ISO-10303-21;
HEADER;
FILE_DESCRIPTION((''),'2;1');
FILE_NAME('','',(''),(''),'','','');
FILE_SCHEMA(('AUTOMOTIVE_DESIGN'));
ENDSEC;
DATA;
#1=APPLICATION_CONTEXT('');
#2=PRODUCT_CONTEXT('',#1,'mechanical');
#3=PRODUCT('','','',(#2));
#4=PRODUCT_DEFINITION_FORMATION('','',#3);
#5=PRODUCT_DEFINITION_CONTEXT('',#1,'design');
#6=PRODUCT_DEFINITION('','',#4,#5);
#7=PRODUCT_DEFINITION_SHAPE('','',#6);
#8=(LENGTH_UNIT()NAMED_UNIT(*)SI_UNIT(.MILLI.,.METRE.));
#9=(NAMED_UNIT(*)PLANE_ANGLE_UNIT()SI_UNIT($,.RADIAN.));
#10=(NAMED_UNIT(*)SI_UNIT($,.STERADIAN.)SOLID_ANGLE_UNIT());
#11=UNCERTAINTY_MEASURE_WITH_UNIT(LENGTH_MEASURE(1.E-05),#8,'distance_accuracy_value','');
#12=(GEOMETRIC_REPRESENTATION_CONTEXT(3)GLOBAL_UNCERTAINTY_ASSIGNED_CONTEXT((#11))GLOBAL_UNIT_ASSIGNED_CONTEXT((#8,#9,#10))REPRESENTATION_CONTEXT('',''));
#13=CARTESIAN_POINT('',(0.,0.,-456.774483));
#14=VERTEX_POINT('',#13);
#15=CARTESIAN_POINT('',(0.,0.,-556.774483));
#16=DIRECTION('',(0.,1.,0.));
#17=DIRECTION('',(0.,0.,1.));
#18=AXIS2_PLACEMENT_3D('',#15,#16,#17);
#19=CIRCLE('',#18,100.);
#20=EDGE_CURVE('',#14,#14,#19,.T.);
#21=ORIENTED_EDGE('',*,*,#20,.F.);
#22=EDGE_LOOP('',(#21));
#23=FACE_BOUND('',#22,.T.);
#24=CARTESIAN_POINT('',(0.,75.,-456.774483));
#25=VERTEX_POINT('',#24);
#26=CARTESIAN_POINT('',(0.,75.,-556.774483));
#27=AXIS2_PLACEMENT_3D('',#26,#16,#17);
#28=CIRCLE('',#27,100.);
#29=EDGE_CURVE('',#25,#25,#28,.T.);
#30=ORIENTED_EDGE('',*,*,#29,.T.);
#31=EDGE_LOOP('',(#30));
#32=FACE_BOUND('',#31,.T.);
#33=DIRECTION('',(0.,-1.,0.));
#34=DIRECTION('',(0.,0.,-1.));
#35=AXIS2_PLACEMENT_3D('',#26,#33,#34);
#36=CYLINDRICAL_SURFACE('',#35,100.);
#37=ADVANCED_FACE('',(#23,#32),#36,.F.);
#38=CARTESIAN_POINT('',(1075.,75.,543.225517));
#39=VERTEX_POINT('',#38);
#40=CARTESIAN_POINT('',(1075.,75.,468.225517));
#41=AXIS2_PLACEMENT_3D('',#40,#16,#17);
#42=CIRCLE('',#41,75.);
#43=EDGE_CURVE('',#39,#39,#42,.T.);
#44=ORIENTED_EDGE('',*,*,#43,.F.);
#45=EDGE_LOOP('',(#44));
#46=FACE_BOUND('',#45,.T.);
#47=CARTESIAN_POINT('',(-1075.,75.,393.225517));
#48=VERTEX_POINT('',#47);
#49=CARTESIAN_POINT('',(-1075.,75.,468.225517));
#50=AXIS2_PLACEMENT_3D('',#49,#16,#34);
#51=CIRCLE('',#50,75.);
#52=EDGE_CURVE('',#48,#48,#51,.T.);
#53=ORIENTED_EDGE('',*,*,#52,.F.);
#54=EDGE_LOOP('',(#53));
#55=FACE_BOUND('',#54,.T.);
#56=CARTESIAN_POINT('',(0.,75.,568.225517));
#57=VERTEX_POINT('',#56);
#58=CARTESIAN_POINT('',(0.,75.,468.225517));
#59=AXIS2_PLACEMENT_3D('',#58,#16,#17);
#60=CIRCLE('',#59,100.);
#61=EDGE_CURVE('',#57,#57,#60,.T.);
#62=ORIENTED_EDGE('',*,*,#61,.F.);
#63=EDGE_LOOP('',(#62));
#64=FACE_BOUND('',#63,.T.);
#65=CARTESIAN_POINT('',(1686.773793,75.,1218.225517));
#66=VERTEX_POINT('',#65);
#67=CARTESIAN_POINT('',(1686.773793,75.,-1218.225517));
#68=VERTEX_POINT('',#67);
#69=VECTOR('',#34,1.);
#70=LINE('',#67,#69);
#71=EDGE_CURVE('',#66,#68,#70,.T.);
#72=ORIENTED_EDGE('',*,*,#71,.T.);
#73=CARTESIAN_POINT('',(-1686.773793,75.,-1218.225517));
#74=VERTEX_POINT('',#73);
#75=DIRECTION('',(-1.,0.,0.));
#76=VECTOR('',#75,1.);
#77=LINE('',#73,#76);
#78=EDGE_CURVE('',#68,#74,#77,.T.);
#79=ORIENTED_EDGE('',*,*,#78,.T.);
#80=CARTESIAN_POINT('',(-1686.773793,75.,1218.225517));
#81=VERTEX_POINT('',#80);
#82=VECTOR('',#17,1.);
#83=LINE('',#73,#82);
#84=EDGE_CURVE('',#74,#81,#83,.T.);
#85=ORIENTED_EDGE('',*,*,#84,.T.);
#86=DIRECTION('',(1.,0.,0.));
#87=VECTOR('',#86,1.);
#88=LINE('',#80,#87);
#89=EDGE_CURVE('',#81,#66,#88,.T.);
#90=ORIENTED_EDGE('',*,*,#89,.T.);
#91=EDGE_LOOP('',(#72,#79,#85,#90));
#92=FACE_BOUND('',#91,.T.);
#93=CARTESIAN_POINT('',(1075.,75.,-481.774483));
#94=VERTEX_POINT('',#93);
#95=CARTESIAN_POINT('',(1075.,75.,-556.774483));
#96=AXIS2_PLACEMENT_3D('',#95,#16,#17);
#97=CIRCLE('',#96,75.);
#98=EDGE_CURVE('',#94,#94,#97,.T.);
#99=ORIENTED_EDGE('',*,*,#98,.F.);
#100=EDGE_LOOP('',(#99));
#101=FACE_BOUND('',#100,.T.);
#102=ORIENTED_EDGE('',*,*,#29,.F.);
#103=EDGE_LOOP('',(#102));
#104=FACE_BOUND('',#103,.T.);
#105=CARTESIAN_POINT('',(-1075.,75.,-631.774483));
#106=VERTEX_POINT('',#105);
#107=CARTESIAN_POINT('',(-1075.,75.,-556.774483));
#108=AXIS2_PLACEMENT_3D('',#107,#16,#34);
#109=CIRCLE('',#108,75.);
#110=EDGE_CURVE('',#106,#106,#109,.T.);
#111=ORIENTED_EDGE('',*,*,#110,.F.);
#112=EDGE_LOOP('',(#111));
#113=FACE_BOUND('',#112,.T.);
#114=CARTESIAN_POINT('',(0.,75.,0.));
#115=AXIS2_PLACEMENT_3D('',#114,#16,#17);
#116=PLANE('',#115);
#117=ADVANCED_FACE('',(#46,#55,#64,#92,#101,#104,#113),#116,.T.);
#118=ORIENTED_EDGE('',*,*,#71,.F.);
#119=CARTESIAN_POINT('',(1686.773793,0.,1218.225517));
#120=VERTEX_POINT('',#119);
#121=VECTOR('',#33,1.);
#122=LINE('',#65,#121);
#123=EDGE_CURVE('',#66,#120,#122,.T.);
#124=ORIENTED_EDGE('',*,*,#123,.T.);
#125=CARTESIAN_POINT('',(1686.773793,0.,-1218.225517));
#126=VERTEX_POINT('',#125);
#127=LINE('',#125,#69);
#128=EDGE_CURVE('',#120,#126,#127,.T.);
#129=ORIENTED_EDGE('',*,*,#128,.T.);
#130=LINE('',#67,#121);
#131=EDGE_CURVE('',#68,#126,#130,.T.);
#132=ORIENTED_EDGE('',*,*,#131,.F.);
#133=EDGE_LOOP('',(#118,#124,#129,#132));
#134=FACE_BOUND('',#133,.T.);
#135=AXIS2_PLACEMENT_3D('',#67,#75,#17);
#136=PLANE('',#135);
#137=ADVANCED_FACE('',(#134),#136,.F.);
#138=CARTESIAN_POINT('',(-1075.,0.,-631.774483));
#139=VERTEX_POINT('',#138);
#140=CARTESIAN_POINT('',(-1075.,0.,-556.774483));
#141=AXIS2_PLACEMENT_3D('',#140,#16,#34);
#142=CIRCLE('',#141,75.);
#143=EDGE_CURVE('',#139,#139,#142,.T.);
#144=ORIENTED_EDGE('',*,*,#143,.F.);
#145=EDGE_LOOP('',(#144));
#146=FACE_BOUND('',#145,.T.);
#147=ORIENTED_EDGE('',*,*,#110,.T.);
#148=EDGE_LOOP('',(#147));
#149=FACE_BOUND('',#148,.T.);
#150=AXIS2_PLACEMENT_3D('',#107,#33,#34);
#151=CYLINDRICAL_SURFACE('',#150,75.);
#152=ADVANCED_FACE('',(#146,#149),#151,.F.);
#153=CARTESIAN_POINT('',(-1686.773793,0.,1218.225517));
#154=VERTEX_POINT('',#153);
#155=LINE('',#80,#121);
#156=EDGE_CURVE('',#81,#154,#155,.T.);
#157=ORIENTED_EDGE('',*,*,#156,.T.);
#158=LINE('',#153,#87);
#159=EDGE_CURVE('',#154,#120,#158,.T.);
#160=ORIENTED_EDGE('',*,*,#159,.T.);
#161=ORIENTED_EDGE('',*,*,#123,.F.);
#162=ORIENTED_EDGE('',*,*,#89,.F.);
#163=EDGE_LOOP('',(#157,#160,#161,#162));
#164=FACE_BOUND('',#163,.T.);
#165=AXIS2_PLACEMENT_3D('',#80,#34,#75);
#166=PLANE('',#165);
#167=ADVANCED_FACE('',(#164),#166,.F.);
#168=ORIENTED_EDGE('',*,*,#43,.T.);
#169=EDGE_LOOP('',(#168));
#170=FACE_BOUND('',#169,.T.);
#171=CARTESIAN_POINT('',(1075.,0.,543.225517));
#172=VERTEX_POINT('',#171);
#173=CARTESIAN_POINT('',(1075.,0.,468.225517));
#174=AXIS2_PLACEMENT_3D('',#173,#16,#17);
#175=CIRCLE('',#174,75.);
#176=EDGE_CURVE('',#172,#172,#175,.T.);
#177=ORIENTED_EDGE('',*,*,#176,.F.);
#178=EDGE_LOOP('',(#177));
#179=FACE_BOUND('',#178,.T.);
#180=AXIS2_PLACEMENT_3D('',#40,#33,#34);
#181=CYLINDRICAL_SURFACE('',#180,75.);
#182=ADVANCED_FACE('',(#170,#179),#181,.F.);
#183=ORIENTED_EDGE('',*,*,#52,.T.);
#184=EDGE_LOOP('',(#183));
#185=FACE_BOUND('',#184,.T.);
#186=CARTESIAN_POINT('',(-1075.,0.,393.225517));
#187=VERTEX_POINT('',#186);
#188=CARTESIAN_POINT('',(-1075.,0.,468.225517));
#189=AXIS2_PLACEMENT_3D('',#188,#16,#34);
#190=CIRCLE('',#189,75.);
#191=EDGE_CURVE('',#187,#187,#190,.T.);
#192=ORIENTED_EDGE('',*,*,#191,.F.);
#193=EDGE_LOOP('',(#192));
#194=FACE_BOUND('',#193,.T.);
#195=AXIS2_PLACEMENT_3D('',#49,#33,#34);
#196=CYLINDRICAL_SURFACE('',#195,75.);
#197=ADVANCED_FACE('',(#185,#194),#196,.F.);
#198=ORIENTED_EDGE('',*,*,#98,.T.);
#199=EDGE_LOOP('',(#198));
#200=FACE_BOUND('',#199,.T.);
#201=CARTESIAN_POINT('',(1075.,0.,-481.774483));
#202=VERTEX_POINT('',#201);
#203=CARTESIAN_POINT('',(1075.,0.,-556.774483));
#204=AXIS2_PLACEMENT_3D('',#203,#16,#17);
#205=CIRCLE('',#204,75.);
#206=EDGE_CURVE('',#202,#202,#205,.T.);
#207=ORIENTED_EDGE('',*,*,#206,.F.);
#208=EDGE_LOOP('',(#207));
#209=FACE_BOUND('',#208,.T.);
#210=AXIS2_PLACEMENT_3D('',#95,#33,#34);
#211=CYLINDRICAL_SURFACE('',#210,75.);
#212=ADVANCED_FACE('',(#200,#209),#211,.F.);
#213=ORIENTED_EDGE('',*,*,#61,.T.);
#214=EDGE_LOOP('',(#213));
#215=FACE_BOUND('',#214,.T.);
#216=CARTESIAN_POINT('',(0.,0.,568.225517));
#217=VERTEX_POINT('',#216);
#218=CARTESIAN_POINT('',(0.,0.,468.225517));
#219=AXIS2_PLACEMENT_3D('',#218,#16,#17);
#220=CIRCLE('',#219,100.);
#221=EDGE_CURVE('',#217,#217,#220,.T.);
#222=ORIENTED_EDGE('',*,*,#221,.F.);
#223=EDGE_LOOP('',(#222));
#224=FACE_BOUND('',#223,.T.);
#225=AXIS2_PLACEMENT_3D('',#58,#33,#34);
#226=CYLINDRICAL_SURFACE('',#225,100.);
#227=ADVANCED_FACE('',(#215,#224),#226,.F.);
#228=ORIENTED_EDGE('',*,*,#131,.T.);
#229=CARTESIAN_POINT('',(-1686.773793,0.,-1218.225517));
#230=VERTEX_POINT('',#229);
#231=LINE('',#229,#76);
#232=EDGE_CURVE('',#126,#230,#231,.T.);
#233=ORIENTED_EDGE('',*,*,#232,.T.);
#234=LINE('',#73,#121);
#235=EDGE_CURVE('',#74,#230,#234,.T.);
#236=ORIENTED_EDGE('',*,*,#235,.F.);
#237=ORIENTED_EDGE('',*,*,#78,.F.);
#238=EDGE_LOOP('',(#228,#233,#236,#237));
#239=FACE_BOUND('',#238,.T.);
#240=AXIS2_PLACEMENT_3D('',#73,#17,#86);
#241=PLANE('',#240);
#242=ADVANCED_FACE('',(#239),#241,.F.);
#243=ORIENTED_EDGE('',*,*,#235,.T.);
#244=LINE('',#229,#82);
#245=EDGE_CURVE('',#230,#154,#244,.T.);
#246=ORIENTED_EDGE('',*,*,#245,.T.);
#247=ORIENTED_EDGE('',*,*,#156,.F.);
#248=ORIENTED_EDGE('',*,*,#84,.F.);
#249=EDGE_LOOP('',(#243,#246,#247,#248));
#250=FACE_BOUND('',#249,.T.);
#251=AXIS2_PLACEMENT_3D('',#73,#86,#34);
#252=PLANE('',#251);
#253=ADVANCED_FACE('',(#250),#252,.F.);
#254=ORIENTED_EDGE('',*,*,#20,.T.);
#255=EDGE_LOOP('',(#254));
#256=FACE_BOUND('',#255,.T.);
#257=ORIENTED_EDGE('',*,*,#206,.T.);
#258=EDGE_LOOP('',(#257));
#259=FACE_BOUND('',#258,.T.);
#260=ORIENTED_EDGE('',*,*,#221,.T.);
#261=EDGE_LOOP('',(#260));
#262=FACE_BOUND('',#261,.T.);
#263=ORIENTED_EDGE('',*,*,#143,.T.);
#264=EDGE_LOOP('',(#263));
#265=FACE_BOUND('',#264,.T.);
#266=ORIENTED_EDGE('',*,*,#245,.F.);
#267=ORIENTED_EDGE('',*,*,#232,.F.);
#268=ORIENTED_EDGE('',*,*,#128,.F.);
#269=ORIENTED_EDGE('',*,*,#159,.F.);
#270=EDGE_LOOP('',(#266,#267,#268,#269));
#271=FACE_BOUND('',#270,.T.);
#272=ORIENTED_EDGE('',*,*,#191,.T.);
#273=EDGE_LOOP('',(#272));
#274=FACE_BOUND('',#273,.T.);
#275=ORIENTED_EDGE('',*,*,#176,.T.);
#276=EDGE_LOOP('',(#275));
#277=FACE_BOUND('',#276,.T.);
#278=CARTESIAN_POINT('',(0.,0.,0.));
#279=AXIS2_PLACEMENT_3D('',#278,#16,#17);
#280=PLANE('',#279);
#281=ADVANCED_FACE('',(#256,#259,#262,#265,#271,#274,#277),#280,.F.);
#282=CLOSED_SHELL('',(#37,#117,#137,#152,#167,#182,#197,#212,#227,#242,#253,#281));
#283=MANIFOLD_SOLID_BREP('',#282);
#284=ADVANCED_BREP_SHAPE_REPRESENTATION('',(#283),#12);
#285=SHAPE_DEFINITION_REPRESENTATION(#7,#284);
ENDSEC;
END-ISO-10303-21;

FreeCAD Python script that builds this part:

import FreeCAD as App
import Part
import Sketcher

doc = App.newDocument("Part")
body = doc.addObject("PartDesign::Body", "Body")

# Sketch on XZ plane
sketch1 = body.newObject("Sketcher::SketchObject", "Sketch")
sketch1.AttachmentSupport = (doc.getObject("XZ_Plane"), [""])
sketch1.MapMode = "FlatFace"
sketch1.addGeometry([
    Part.LineSegment(App.Vector(-1687, -1218, 0), App.Vector(-1687, 1218, 0)),  # 0
    Part.LineSegment(App.Vector(-1687, 1218, 0), App.Vector(1687, 1218, 0)),  # 1
    Part.LineSegment(App.Vector(1687, 1218, 0), App.Vector(1687, -1218, 0)),  # 2
    Part.LineSegment(App.Vector(1687, -1218, 0), App.Vector(-1687, -1218, 0)),  # 3
    Part.Circle(App.Vector(-1075, 468, 0), App.Vector(0, 0, 1), 75),  # 4
    Part.Circle(App.Vector(0, 468, 0), App.Vector(0, 0, 1), 100),  # 5
    Part.Circle(App.Vector(1075, 468, 0), App.Vector(0, 0, 1), 75),  # 6
    Part.Circle(App.Vector(-1075, -557, 0), App.Vector(0, 0, 1), 75),  # 7
    Part.Circle(App.Vector(0, -557, 0), App.Vector(0, 0, 1), 100),  # 8
    Part.Circle(App.Vector(1075, -557, 0), App.Vector(0, 0, 1), 75),  # 9
], False)
sketch1.addConstraint([
    Sketcher.Constraint("Coincident", 0, 2, 1, 1),
    Sketcher.Constraint("Coincident", 1, 2, 2, 1),
    Sketcher.Constraint("Coincident", 2, 2, 3, 1),
    Sketcher.Constraint("Coincident", 3, 2, 0, 1),
    Sketcher.Constraint("Vertical", 0),
    Sketcher.Constraint("Horizontal", 1),
    Sketcher.Constraint("Vertical", 2),
    Sketcher.Constraint("Horizontal", 3),
    Sketcher.Constraint("Equal", 4, 6),
    Sketcher.Constraint("Equal", 6, 7),
    Sketcher.Constraint("Equal", 5, 8),
    Sketcher.Constraint("Equal", 7, 9),
    Sketcher.Constraint("Symmetric", 0, 2, 2, 2, -1, 1),
    Sketcher.Constraint("Symmetric", 4, 3, 6, 3, -2),
    Sketcher.Constraint("Symmetric", 7, 3, 9, 3, -2),
    Sketcher.Constraint("PointOnObject", 5, 3, -2),
    Sketcher.Constraint("PointOnObject", 8, 3, -2),
    Sketcher.Constraint("Horizontal", 4, 3, 5, 3),
    Sketcher.Constraint("Horizontal", 7, 3, 8, 3),
    Sketcher.Constraint("Vertical", 4, 3, 7, 3),
    Sketcher.Constraint("Diameter", 4, 150.0),
    Sketcher.Constraint("Diameter", 5, 200.0),
    Sketcher.Constraint("DistanceX", 4, 3, -1, 1, 1075.0),
    Sketcher.Constraint("DistanceY", 7, 3, 4, 3, 1025.0),
    Sketcher.Constraint("DistanceY", 4, 3, 0, 2, 750.0),
    Sketcher.Constraint("DistanceX", 1, 1, 1, 2, 3373.547586),
    Sketcher.Constraint("DistanceY", 0, 1, 0, 2, 2436.451034),
])
pad1 = body.newObject("PartDesign::Pad", "Pad")
pad1.Profile = sketch1
pad1.Length = 75
pad1.Reversed = True

doc.recompute()
